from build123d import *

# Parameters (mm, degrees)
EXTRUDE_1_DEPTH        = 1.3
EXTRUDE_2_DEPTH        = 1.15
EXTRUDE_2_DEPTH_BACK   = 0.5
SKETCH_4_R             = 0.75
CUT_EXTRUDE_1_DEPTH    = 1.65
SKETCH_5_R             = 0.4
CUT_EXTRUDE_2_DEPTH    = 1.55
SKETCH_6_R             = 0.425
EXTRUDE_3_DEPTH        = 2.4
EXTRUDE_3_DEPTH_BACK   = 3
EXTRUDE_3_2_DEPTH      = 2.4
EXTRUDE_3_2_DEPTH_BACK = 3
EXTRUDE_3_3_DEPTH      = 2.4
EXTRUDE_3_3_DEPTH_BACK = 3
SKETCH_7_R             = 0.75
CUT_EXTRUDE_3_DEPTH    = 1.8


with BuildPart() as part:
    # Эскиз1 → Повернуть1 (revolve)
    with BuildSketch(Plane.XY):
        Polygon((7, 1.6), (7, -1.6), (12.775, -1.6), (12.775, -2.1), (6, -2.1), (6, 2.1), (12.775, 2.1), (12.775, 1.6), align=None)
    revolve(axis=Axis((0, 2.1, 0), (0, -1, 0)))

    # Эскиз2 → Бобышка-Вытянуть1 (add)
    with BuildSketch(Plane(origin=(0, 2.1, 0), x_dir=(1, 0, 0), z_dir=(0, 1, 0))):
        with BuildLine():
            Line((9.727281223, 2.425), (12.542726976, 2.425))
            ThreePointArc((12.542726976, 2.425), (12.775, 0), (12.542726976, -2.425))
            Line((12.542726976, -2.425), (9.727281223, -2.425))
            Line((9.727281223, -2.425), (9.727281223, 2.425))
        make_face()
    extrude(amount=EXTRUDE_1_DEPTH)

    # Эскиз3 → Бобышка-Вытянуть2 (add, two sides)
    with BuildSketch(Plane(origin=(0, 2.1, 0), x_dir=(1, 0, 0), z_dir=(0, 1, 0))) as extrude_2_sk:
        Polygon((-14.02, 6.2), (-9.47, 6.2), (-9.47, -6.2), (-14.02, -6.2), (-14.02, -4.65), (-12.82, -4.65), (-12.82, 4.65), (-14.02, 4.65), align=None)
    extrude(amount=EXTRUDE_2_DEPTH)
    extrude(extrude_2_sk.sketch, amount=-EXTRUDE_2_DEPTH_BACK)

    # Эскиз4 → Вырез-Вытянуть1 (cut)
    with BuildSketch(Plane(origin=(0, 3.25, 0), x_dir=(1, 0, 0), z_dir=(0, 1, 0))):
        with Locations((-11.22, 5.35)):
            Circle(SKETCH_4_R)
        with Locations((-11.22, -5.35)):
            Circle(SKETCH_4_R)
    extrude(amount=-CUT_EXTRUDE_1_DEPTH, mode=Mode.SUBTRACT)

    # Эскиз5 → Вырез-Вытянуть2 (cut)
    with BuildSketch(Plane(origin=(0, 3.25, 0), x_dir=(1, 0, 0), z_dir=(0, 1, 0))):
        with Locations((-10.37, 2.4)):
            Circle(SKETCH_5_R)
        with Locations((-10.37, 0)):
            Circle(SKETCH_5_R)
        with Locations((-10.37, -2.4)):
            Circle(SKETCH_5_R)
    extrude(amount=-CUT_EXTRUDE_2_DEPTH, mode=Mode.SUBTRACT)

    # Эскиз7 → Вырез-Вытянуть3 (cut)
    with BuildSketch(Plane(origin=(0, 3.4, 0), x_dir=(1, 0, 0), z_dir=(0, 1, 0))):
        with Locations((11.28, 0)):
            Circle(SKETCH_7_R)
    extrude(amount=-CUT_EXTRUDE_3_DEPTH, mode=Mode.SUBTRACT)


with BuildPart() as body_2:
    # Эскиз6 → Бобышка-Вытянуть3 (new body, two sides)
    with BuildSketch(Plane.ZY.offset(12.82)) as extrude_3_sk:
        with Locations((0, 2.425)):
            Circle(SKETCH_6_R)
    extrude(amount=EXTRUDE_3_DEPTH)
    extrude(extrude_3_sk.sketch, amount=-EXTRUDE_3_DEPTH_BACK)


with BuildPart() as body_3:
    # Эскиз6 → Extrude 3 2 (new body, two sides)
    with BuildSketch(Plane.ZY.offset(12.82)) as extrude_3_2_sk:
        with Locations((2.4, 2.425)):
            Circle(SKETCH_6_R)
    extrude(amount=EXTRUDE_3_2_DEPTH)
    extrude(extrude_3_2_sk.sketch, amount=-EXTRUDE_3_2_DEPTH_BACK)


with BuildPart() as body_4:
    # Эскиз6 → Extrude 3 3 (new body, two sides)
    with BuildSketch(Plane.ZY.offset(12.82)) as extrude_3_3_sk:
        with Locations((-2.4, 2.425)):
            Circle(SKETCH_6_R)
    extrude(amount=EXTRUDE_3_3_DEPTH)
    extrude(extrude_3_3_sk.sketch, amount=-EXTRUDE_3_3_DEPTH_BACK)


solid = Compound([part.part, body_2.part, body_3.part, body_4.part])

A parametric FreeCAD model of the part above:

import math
import FreeCAD as App
import Part
import Sketcher

V = App.Vector

doc = App.newDocument("Part")
body = doc.addObject("PartDesign::Body", "Body")

# Sketch on XY plane
sketch1 = body.newObject("Sketcher::SketchObject", "Sketch")
sketch1.AttachmentSupport = (doc.getObject("XY_Plane"), [""])
sketch1.MapMode = "FlatFace"
sketch1.addGeometry(Part.LineSegment(V(7, -1.6, 0), V(7, 1.6, 0)), False)
sketch1.addGeometry(Part.LineSegment(V(7, 1.6, 0), V(12.8, 1.6, 0)), False)
sketch1.addGeometry(Part.LineSegment(V(12.8, 1.6, 0), V(12.8, 2.1, 0)), False)
sketch1.addGeometry(Part.LineSegment(V(12.8, 2.1, 0), V(6, 2.1, 0)), False)
sketch1.addGeometry(Part.LineSegment(V(6, 2.1, 0), V(6, -2.1, 0)), False)
sketch1.addGeometry(Part.LineSegment(V(6, -2.1, 0), V(12.8, -2.1, 0)), False)
sketch1.addGeometry(Part.LineSegment(V(12.8, -2.1, 0), V(12.8, -1.6, 0)), False)
sketch1.addGeometry(Part.LineSegment(V(12.8, -1.6, 0), V(7, -1.6, 0)), False)
sketch1.addConstraint(Sketcher.Constraint("Coincident", 0, 2, 1, 1))
sketch1.addConstraint(Sketcher.Constraint("Coincident", 1, 2, 2, 1))
sketch1.addConstraint(Sketcher.Constraint("Coincident", 2, 2, 3, 1))
sketch1.addConstraint(Sketcher.Constraint("Coincident", 3, 2, 4, 1))
sketch1.addConstraint(Sketcher.Constraint("Coincident", 4, 2, 5, 1))
sketch1.addConstraint(Sketcher.Constraint("Coincident", 5, 2, 6, 1))
sketch1.addConstraint(Sketcher.Constraint("Coincident", 6, 2, 7, 1))
sketch1.addConstraint(Sketcher.Constraint("Coincident", 7, 2, 0, 1))
sketch1.addConstraint(Sketcher.Constraint("Vertical", 0))
sketch1.addConstraint(Sketcher.Constraint("Horizontal", 1))
sketch1.addConstraint(Sketcher.Constraint("Vertical", 2))
sketch1.addConstraint(Sketcher.Constraint("Horizontal", 3))
sketch1.addConstraint(Sketcher.Constraint("Vertical", 4))
sketch1.addConstraint(Sketcher.Constraint("Horizontal", 5))
sketch1.addConstraint(Sketcher.Constraint("Vertical", 6))
sketch1.addConstraint(Sketcher.Constraint("Horizontal", 7))
sketch1.addConstraint(Sketcher.Constraint("Symmetric", 2, 2, 5, 2, -1))
sketch1.addConstraint(Sketcher.Constraint("Equal", 2, 6))
sketch1.addConstraint(Sketcher.Constraint("DistanceY", 0, 1, 0, 2, 3.2))
sketch1.addConstraint(Sketcher.Constraint("DistanceY", 2, 1, 2, 2, 0.5))
sketch1.addConstraint(Sketcher.Constraint("DistanceX", -1, 1, 0, 2, 7.0))
sketch1.addConstraint(Sketcher.Constraint("DistanceX", -1, 1, 3, 2, 6.0))
sketch1.addConstraint(Sketcher.Constraint("DistanceX", 1, 1, 1, 2, 5.775))
revolution = body.newObject("PartDesign::Revolution", "Revolution")
revolution.Profile = sketch1
revolution.ReferenceAxis = (sketch1, ["V_Axis"])
revolution.Angle = 360

# Sketch on XZ plane
sketch2 = body.newObject("Sketcher::SketchObject", "Sketch001")
sketch2.AttachmentSupport = (doc.getObject("XZ_Plane"), [""])
sketch2.MapMode = "FlatFace"
sketch2.AttachmentOffset = App.Placement(V(0, 0, -2.1), App.Rotation())
sketch2.addGeometry(Part.LineSegment(V(12.5, -2.4, 0), V(9.7, -2.4, 0)), False)
sketch2.addGeometry(Part.LineSegment(V(9.7, -2.4, 0), V(9.7, 2.4, 0)), False)
sketch2.addGeometry(Part.LineSegment(V(9.7, 2.4, 0), V(12.5, 2.4, 0)), False)
sketch2.addGeometry(Part.ArcOfCircle(Part.Circle(V(0, 0, 0), V(0, 0, 1), 12.8), math.radians(-11), math.radians(11)), False)
sketch2.addConstraint(Sketcher.Constraint("Coincident", 0, 2, 1, 1))
sketch2.addConstraint(Sketcher.Constraint("Coincident", 1, 2, 2, 1))
sketch2.addConstraint(Sketcher.Constraint("Coincident", 2, 2, 3, 2))
sketch2.addConstraint(Sketcher.Constraint("Coincident", 3, 1, 0, 1))
sketch2.addConstraint(Sketcher.Constraint("Horizontal", 0))
sketch2.addConstraint(Sketcher.Constraint("Vertical", 1))
sketch2.addConstraint(Sketcher.Constraint("Horizontal", 2))
sketch2.addConstraint(Sketcher.Constraint("Coincident", 3, 3, -1, 1))
sketch2.addConstraint(Sketcher.Constraint("Vertical", 2, 2, 3, 1))
sketch2.addConstraint(Sketcher.Constraint("Radius", 3, 12.775))
sketch2.addConstraint(Sketcher.Constraint("DistanceY", 1, 1, 1, 2, 4.85))
sketch2.addConstraint(Sketcher.Constraint("DistanceX", 0, 2, 0, 1, 2.815446))
pad1 = body.newObject("PartDesign::Pad", "Pad")
pad1.Profile = sketch2
pad1.Length = 1.3
pad1.Reversed = True

# Sketch on XZ plane
sketch3 = body.newObject("Sketcher::SketchObject", "Sketch002")
sketch3.AttachmentSupport = (doc.getObject("XZ_Plane"), [""])
sketch3.MapMode = "FlatFace"
sketch3.AttachmentOffset = App.Placement(V(0, 0, -2.1), App.Rotation())
sketch3.addGeometry(Part.LineSegment(V(-9.5, -6.2, 0), V(-14, -6.2, 0)), False)
sketch3.addGeometry(Part.LineSegment(V(-14, -6.2, 0), V(-14, -4.7, 0)), False)
sketch3.addGeometry(Part.LineSegment(V(-14, -4.7, 0), V(-12.8, -4.7, 0)), False)
sketch3.addGeometry(Part.LineSegment(V(-12.8, -4.7, 0), V(-12.8, 4.7, 0)), False)
sketch3.addGeometry(Part.LineSegment(V(-12.8, 4.7, 0), V(-14, 4.7, 0)), False)
sketch3.addGeometry(Part.LineSegment(V(-14, 4.7, 0), V(-14, 6.2, 0)), False)
sketch3.addGeometry(Part.LineSegment(V(-14, 6.2, 0), V(-9.5, 6.2, 0)), False)
sketch3.addGeometry(Part.LineSegment(V(-9.5, 6.2, 0), V(-9.5, -6.2, 0)), False)
sketch3.addConstraint(Sketcher.Constraint("Coincident", 0, 2, 1, 1))
sketch3.addConstraint(Sketcher.Constraint("Coincident", 1, 2, 2, 1))
sketch3.addConstraint(Sketcher.Constraint("Coincident", 2, 2, 3, 1))
sketch3.addConstraint(Sketcher.Constraint("Coincident", 3, 2, 4, 1))
sketch3.addConstraint(Sketcher.Constraint("Coincident", 4, 2, 5, 1))
sketch3.addConstraint(Sketcher.Constraint("Coincident", 5, 2, 6, 1))
sketch3.addConstraint(Sketcher.Constraint("Coincident", 6, 2, 7, 1))
sketch3.addConstraint(Sketcher.Constraint("Coincident", 7, 2, 0, 1))
sketch3.addConstraint(Sketcher.Constraint("Horizontal", 0))
sketch3.addConstraint(Sketcher.Constraint("Vertical", 1))
sketch3.addConstraint(Sketcher.Constraint("Horizontal", 2))
sketch3.addConstraint(Sketcher.Constraint("Vertical", 3))
sketch3.addConstraint(Sketcher.Constraint("Horizontal", 4))
sketch3.addConstraint(Sketcher.Constraint("Vertical", 5))
sketch3.addConstraint(Sketcher.Constraint("Horizontal", 6))
sketch3.addConstraint(Sketcher.Constraint("Vertical", 7))
sketch3.addConstraint(Sketcher.Constraint("Symmetric", 1, 2, 4, 2, -1))
sketch3.addConstraint(Sketcher.Constraint("Equal", 1, 5))
sketch3.addConstraint(Sketcher.Constraint("DistanceX", 2, 1, 2, 2, 1.2))
sketch3.addConstraint(Sketcher.Constraint("DistanceY", 3, 1, 3, 2, 9.3))
sketch3.addConstraint(Sketcher.Constraint("DistanceY", 7, 2, 7, 1, 12.4))
sketch3.addConstraint(Sketcher.Constraint("DistanceX", 0, 2, 0, 1, 4.55))
sketch3.addConstraint(Sketcher.Constraint("DistanceX", 0, 2, -1, 1, 14.02))
pad2 = body.newObject("PartDesign::Pad", "Pad001")
pad2.Profile = sketch3
pad2.Type = "TwoLengths"
pad2.Length = 1.15
pad2.Length2 = 0.5
pad2.Reversed = True

# Sketch on XZ plane
sketch4 = body.newObject("Sketcher::SketchObject", "Sketch003")
sketch4.AttachmentSupport = (doc.getObject("XZ_Plane"), [""])
sketch4.MapMode = "FlatFace"
sketch4.AttachmentOffset = App.Placement(V(0, 0, -3.25), App.Rotation())
sketch4.addGeometry(Part.Circle(V(-11.2, -5.3, 0), V(0, 0, 1), 0.8), False)
sketch4.addGeometry(Part.Circle(V(-11.2, 5.3, 0), V(0, 0, 1), 0.8), False)
sketch4.addConstraint(Sketcher.Constraint("Equal", 0, 1))
sketch4.addConstraint(Sketcher.Constraint("Symmetric", 0, 3, 1, 3, -1))
sketch4.addConstraint(Sketcher.Constraint("Diameter", 0, 1.5))
sketch4.addConstraint(Sketcher.Constraint("DistanceY", 0, 3, 1, 3, 10.7))
sketch4.addConstraint(Sketcher.Constraint("DistanceX", 0, 3, -1, 1, 11.22))
pocket1 = body.newObject("PartDesign::Pocket", "Pocket")
pocket1.Profile = sketch4
pocket1.Length = 1.65
pocket1.Reversed = True

# Sketch on XZ plane
sketch5 = body.newObject("Sketcher::SketchObject", "Sketch004")
sketch5.AttachmentSupport = (doc.getObject("XZ_Plane"), [""])
sketch5.MapMode = "FlatFace"
sketch5.AttachmentOffset = App.Placement(V(0, 0, -3.25), App.Rotation())
sketch5.addGeometry(Part.Circle(V(-10.37, -2.4, 0), V(0, 0, 1), 0.4), False)
sketch5.addGeometry(Part.Circle(V(-10.37, 0, 0), V(0, 0, 1), 0.4), False)
sketch5.addGeometry(Part.Circle(V(-10.37, 2.4, 0), V(0, 0, 1), 0.4), False)
sketch5.addConstraint(Sketcher.Constraint("Equal", 0, 1))
sketch5.addConstraint(Sketcher.Constraint("Equal", 1, 2))
sketch5.addConstraint(Sketcher.Constraint("Symmetric", 0, 3, 2, 3, -1))
sketch5.addConstraint(Sketcher.Constraint("PointOnObject", 1, 3, -1))
sketch5.addConstraint(Sketcher.Constraint("Vertical", 0, 3, 1, 3))
sketch5.addConstraint(Sketcher.Constraint("Diameter", 0, 0.8))
sketch5.addConstraint(Sketcher.Constraint("DistanceY", 0, 3, -1, 1, 2.4))
sketch5.addConstraint(Sketcher.Constraint("DistanceX", 0, 3, -1, 1, 10.37))
pocket2 = body.newObject("PartDesign::Pocket", "Pocket001")
pocket2.Profile = sketch5
pocket2.Length = 1.55
pocket2.Reversed = True

# Sketch on XZ plane
sketch6 = body.newObject("Sketcher::SketchObject", "Sketch005")
sketch6.AttachmentSupport = (doc.getObject("XZ_Plane"), [""])
sketch6.MapMode = "FlatFace"
sketch6.AttachmentOffset = App.Placement(V(0, 0, -3.4), App.Rotation())
sketch6.addGeometry(Part.Circle(V(11.3, 0, 0), V(0, 0, 1), 0.8), False)
sketch6.addConstraint(Sketcher.Constraint("PointOnObject", 0, 3, -1))
sketch6.addConstraint(Sketcher.Constraint("Diameter", 0, 1.5))
sketch6.addConstraint(Sketcher.Constraint("DistanceX", -1, 1, 0, 3, 11.28))
pocket3 = body.newObject("PartDesign::Pocket", "Pocket002")
pocket3.Profile = sketch6
pocket3.Length = 1.8
pocket3.Reversed = True
body2 = doc.addObject("PartDesign::Body", "Body001")

# Sketch on YZ plane
sketch7 = body2.newObject("Sketcher::SketchObject", "Sketch006")
sketch7.AttachmentSupport = (doc.getObject("YZ_Plane001"), [""])
sketch7.MapMode = "FlatFace"
sketch7.AttachmentOffset = App.Placement(V(0, 0, -12.82), App.Rotation())
sketch7.addGeometry(Part.Circle(V(2.42, 0, 0), V(0, 0, 1), 0.42), False)
sketch7.addConstraint(Sketcher.Constraint("PointOnObject", 0, 3, -1))
sketch7.addConstraint(Sketcher.Constraint("Diameter", 0, 0.85))
sketch7.addConstraint(Sketcher.Constraint("DistanceX", -1, 1, 0, 3, 2.425))
pad3 = body2.newObject("PartDesign::Pad", "Pad002")
pad3.Profile = sketch7
pad3.Type = "TwoLengths"
pad3.Length = 2.4
pad3.Length2 = 3
pad3.Reversed = True
body3 = doc.addObject("PartDesign::Body", "Body002")

# Sketch on YZ plane
sketch8 = body3.newObject("Sketcher::SketchObject", "Sketch007")
sketch8.AttachmentSupport = (doc.getObject("YZ_Plane002"), [""])
sketch8.MapMode = "FlatFace"
sketch8.AttachmentOffset = App.Placement(V(0, 0, -12.82), App.Rotation())
sketch8.addGeometry(Part.Circle(V(2.42, 2.4, 0), V(0, 0, 1), 0.42), False)
sketch8.addConstraint(Sketcher.Constraint("Diameter", 0, 0.85))
sketch8.addConstraint(Sketcher.Constraint("DistanceY", -1, 1, 0, 3, 2.4))
sketch8.addConstraint(Sketcher.Constraint("DistanceX", -1, 1, 0, 3, 2.425))
pad4 = body3.newObject("PartDesign::Pad", "Pad003")
pad4.Profile = sketch8
pad4.Type = "TwoLengths"
pad4.Length = 2.4
pad4.Length2 = 3
pad4.Reversed = True
body4 = doc.addObject("PartDesign::Body", "Body003")

# Sketch on YZ plane
sketch9 = body4.newObject("Sketcher::SketchObject", "Sketch008")
sketch9.AttachmentSupport = (doc.getObject("YZ_Plane003"), [""])
sketch9.MapMode = "FlatFace"
sketch9.AttachmentOffset = App.Placement(V(0, 0, -12.82), App.Rotation())
sketch9.addGeometry(Part.Circle(V(2.42, -2.4, 0), V(0, 0, 1), 0.42), False)
sketch9.addConstraint(Sketcher.Constraint("Diameter", 0, 0.85))
sketch9.addConstraint(Sketcher.Constraint("DistanceY", 0, 3, -1, 1, 2.4))
sketch9.addConstraint(Sketcher.Constraint("DistanceX", -1, 1, 0, 3, 2.425))
pad5 = body4.newObject("PartDesign::Pad", "Pad004")
pad5.Profile = sketch9
pad5.Type = "TwoLengths"
pad5.Length = 2.4
pad5.Length2 = 3
pad5.Reversed = True

doc.recompute()
